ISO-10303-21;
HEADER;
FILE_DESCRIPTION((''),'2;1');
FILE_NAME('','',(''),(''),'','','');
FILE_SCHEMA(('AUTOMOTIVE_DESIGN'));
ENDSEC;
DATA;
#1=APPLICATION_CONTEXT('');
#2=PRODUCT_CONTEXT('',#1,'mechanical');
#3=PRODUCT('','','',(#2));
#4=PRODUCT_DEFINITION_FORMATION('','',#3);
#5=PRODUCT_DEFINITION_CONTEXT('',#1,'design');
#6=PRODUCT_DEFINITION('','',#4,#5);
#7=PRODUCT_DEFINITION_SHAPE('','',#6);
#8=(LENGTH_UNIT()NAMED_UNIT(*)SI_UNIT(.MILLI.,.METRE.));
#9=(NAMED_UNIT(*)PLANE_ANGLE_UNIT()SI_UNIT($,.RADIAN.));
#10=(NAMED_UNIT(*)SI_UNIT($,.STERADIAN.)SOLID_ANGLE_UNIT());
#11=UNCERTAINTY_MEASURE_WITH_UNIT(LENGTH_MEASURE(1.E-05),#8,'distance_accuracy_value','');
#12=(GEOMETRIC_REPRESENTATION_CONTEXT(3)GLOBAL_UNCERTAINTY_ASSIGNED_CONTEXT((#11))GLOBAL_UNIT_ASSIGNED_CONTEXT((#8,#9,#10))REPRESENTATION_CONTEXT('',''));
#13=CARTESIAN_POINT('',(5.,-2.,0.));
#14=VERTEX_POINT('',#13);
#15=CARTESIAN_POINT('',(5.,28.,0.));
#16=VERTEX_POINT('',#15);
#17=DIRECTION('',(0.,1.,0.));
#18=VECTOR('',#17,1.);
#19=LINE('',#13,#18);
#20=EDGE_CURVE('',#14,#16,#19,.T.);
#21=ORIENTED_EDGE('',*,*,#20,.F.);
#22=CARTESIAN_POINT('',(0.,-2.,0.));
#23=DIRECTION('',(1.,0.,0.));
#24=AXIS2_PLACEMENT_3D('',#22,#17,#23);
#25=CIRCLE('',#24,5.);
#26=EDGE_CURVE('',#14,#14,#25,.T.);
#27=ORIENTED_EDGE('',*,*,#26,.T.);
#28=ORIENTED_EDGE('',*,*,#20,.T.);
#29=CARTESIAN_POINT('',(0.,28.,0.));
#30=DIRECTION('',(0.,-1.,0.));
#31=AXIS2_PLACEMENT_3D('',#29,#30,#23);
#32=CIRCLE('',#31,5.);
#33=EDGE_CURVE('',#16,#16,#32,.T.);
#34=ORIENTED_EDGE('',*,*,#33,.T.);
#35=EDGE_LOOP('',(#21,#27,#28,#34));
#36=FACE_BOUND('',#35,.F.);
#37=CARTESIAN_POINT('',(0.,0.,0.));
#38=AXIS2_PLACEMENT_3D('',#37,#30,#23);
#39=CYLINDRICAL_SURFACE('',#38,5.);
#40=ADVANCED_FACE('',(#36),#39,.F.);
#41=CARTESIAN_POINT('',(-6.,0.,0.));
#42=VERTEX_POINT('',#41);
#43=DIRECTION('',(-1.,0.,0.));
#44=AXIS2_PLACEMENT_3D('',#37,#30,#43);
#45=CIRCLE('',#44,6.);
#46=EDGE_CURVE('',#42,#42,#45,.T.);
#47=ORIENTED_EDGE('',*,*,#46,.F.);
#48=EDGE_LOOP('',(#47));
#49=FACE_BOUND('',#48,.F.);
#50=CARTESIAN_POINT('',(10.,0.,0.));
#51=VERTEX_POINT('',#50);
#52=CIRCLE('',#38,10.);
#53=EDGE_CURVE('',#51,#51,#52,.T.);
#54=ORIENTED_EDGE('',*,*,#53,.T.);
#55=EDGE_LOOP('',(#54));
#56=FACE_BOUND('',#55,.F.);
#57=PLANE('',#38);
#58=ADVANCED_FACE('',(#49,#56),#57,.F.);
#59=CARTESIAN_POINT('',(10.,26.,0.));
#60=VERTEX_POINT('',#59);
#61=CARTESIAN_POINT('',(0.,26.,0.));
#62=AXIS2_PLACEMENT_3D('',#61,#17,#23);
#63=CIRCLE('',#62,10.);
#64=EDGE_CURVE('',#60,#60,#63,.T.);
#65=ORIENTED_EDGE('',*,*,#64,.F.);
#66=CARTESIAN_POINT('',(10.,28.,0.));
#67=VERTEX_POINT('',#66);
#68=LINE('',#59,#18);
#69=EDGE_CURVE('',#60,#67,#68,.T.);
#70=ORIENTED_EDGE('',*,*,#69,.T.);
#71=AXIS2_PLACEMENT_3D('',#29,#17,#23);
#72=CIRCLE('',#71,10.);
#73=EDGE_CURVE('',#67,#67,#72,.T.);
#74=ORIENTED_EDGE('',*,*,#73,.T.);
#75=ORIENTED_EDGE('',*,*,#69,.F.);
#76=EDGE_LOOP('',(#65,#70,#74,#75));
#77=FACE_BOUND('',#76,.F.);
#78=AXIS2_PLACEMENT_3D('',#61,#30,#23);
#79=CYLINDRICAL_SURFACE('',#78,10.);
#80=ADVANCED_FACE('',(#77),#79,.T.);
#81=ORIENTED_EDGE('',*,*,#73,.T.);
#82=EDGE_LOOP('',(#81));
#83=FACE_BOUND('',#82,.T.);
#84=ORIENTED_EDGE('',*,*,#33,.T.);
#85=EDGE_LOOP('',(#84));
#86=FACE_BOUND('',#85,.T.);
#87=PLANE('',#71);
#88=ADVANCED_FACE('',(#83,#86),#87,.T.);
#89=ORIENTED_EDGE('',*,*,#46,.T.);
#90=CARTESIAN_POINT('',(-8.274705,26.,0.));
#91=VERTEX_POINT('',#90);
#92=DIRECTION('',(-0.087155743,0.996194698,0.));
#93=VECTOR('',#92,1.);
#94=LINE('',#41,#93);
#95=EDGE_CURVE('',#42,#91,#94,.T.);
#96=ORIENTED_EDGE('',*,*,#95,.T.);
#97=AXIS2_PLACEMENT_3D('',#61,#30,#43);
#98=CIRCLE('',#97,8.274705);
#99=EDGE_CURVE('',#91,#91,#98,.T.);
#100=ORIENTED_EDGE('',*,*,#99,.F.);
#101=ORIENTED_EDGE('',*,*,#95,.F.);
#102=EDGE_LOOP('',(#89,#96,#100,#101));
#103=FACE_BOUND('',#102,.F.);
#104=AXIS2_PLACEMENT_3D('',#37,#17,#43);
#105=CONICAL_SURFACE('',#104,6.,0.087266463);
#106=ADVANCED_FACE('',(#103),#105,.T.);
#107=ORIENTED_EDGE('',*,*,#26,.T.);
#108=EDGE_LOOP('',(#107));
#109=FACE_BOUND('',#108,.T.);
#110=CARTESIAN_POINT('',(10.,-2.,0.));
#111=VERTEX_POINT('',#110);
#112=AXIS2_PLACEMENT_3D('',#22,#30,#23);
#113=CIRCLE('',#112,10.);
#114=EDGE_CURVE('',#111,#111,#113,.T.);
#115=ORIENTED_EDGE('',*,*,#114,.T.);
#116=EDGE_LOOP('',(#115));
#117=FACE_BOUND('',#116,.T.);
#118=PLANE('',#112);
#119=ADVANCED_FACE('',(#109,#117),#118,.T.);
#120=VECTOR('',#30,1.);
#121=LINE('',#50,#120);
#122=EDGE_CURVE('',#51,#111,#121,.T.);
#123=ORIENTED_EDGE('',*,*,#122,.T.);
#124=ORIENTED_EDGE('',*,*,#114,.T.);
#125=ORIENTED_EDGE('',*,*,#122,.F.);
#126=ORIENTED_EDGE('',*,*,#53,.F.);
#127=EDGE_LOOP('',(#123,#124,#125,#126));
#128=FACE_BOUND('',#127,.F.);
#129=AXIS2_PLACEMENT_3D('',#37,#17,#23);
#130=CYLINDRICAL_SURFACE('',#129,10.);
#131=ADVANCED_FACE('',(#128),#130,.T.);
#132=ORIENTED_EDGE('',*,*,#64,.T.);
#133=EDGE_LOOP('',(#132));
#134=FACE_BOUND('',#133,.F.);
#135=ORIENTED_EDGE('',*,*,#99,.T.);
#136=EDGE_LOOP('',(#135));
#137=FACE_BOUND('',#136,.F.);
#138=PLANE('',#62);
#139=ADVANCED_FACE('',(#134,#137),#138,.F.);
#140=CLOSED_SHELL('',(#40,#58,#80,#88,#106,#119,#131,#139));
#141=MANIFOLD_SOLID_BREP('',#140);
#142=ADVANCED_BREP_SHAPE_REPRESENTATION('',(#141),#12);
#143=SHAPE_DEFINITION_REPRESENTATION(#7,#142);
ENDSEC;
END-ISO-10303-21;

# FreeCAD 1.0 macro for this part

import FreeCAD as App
import Part
import Sketcher

V = App.Vector

doc = App.newDocument("Part")
body = doc.addObject("PartDesign::Body", "Body")

sketch1 = body.newObject("Sketcher::SketchObject", "Sketch")
sketch1.AttachmentSupport = (doc.getObject("XZ_Plane"), [""])
sketch1.MapMode = "FlatFace"
sketch1.addGeometry(Part.Circle(V(0, 0, 0), V(0, 0, 1), 6), False)
sketch1.addConstraint([
    Sketcher.Constraint("Coincident", 0, 3, -1, 1),
    Sketcher.Constraint("Diameter", 0, 12.0),
])
pad1 = body.newObject("PartDesign::Pad", "Pad")
pad1.Profile = sketch1
pad1.Length = 26
pad1.Reversed = True
pad1.TaperAngle = 5

sketch2 = body.newObject("Sketcher::SketchObject", "Sketch001")
sketch2.AttachmentSupport = (doc.getObject("XZ_Plane"), [""])
sketch2.MapMode = "FlatFace"
sketch2.addGeometry(Part.Circle(V(0, 0, 0), V(0, 0, 1), 10), False)
sketch2.addConstraint([
    Sketcher.Constraint("Coincident", 0, 3, -1, 1),
    Sketcher.Constraint("Diameter", 0, 20.0),
])
pad2 = body.newObject("PartDesign::Pad", "Pad001")
pad2.Profile = sketch2
pad2.Length = 2

sketch3 = body.newObject("Sketcher::SketchObject", "Sketch002")
sketch3.AttachmentSupport = (doc.getObject("XZ_Plane"), [""])
sketch3.MapMode = "FlatFace"
sketch3.AttachmentOffset = App.Placement(V(0, 0, -26), App.Rotation())
sketch3.addGeometry(Part.Circle(V(0, 0, 0), V(0, 0, 1), 10), False)
sketch3.addConstraint([
    Sketcher.Constraint("Coincident", 0, 3, -1, 1),
    Sketcher.Constraint("Diameter", 0, 20.0),
])
pad3 = body.newObject("PartDesign::Pad", "Pad002")
pad3.Profile = sketch3
pad3.Length = 2
pad3.Reversed = True

sketch4 = body.newObject("Sketcher::SketchObject", "Sketch003")
sketch4.AttachmentSupport = (doc.getObject("XZ_Plane"), [""])
sketch4.MapMode = "FlatFace"
sketch4.addGeometry(Part.Circle(V(0, 0, 0), V(0, 0, 1), 5), False)
sketch4.addConstraint([
    Sketcher.Constraint("Coincident", 0, 3, -1, 1),
    Sketcher.Constraint("Diameter", 0, 10.0),
])
pocket1 = body.newObject("PartDesign::Pocket", "Pocket")
pocket1.Profile = sketch4
pocket1.Type = "ThroughAll"
pocket1.Midplane = True

doc.recompute()
